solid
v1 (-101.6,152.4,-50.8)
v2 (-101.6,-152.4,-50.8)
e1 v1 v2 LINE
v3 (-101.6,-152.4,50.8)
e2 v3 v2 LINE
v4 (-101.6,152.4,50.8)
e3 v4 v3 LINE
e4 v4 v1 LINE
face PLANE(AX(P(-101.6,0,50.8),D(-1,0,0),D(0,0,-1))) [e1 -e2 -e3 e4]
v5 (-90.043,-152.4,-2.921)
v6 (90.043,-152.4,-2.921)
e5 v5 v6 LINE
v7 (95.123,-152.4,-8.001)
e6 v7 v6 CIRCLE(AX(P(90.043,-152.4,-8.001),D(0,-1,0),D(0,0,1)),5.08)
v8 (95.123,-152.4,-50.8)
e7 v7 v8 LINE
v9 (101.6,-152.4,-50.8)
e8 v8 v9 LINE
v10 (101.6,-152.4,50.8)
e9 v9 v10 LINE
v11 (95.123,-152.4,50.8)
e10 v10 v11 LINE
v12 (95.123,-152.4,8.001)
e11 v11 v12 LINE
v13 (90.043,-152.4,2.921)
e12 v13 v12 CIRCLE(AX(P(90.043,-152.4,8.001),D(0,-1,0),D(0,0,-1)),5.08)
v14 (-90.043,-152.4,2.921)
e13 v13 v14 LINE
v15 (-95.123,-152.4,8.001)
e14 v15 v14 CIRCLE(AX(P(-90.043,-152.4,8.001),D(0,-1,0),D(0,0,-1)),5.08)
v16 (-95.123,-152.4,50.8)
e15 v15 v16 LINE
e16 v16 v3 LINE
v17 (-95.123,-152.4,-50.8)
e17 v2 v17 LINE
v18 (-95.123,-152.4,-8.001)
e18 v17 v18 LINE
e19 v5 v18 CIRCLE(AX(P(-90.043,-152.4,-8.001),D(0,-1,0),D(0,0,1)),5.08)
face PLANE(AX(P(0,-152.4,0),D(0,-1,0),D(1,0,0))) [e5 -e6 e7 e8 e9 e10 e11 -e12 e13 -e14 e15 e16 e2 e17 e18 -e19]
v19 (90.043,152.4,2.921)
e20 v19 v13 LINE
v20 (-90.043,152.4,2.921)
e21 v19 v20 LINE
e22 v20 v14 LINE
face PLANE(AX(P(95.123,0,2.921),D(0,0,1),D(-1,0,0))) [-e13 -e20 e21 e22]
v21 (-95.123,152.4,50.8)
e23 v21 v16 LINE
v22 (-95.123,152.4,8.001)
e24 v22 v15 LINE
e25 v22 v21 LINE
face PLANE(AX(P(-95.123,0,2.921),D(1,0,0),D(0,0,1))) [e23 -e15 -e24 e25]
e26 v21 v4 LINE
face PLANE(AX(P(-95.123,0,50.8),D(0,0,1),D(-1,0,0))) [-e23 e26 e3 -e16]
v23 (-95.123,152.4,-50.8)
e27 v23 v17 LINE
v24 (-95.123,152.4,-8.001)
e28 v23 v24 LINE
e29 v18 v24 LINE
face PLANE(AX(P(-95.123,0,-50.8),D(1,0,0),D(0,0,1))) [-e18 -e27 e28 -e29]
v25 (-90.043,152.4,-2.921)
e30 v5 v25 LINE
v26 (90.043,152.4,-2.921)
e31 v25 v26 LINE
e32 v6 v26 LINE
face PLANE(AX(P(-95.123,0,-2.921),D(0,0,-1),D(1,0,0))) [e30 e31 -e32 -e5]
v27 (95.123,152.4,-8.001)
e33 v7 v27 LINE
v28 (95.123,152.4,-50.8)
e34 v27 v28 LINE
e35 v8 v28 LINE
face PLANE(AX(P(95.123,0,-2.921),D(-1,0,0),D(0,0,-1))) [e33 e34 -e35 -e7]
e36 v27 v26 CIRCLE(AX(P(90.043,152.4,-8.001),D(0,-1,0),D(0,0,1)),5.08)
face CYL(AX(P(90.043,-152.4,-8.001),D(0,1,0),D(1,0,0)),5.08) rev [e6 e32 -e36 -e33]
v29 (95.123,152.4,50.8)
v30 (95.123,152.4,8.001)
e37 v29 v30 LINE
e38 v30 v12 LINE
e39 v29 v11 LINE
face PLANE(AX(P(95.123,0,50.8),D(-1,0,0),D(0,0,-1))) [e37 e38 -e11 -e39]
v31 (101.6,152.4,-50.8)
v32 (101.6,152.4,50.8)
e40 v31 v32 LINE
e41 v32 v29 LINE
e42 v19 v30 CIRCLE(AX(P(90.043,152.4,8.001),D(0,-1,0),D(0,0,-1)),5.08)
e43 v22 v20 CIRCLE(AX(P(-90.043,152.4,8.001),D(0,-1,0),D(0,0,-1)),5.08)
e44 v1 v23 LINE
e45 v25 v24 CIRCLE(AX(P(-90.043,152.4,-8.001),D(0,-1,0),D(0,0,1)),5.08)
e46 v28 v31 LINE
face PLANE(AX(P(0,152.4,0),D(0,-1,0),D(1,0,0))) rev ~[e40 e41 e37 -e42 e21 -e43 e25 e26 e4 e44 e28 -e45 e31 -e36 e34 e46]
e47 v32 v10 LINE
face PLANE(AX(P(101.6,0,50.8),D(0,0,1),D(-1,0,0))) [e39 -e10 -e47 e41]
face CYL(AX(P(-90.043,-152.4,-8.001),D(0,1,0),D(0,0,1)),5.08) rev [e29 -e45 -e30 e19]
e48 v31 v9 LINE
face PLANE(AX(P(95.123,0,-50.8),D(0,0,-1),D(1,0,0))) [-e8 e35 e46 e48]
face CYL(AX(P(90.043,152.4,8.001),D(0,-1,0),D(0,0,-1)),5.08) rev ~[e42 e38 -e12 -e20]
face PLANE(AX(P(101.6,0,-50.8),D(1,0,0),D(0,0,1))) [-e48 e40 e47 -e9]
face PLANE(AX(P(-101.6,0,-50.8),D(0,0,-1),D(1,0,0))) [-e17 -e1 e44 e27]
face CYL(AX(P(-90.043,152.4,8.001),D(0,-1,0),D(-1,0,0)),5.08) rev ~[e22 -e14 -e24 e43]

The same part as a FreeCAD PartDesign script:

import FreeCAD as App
import Part
import Sketcher
from FreeCAD import Vector
Q = App.Units.Quantity


def edges_at(feature, points):
    """Names of the edges that pass closest to the given points."""
    edges = feature.Shape.Edges
    near = lambda p: min(range(len(edges)), key=lambda i: edges[i].distToShape(Part.Vertex(*p))[0])
    return sorted({f"Edge{near(p) + 1}" for p in points})

doc = App.newDocument("Part")
body = doc.addObject("PartDesign::Body", "Body")

# Sketch on XZ plane
sketch1 = body.newObject("Sketcher::SketchObject", "Sketch")
sketch1.AttachmentSupport = (doc.getObject("XZ_Plane"), [""])
sketch1.MapMode = "FlatFace"
sketch1.addGeometry(Part.LineSegment(Vector(95.123, -50.8, 0), Vector(101.6, -50.8, 0)), False)
sketch1.addGeometry(Part.LineSegment(Vector(101.6, -50.8, 0), Vector(101.6, 50.8, 0)), False)
sketch1.addGeometry(Part.LineSegment(Vector(101.6, 50.8, 0), Vector(95.123, 50.8, 0)), False)
sketch1.addGeometry(Part.LineSegment(Vector(95.123, 50.8, 0), Vector(95.123, 2.921, 0)), False)
sketch1.addGeometry(Part.LineSegment(Vector(95.123, 2.921, 0), Vector(-95.123, 2.921, 0)), False)
sketch1.addGeometry(Part.LineSegment(Vector(-95.123, 2.921, 0), Vector(-95.123, 50.8, 0)), False)
sketch1.addGeometry(Part.LineSegment(Vector(-95.123, 50.8, 0), Vector(-101.6, 50.8, 0)), False)
sketch1.addGeometry(Part.LineSegment(Vector(-101.6, 50.8, 0), Vector(-101.6, -50.8, 0)), False)
sketch1.addGeometry(Part.LineSegment(Vector(-101.6, -50.8, 0), Vector(-95.123, -50.8, 0)), False)
sketch1.addGeometry(Part.LineSegment(Vector(-95.123, -50.8, 0), Vector(-95.123, -2.921, 0)), False)
sketch1.addGeometry(Part.LineSegment(Vector(-95.123, -2.921, 0), Vector(95.123, -2.921, 0)), False)
sketch1.addGeometry(Part.LineSegment(Vector(95.123, -2.921, 0), Vector(95.123, -50.8, 0)), False)
sketch1.addConstraint(Sketcher.Constraint("Coincident", 0, 2, 1, 1))
sketch1.addConstraint(Sketcher.Constraint("Coincident", 1, 2, 2, 1))
sketch1.addConstraint(Sketcher.Constraint("Coincident", 2, 2, 3, 1))
sketch1.addConstraint(Sketcher.Constraint("Coincident", 3, 2, 4, 1))
sketch1.addConstraint(Sketcher.Constraint("Coincident", 4, 2, 5, 1))
sketch1.addConstraint(Sketcher.Constraint("Coincident", 5, 2, 6, 1))
sketch1.addConstraint(Sketcher.Constraint("Coincident", 6, 2, 7, 1))
sketch1.addConstraint(Sketcher.Constraint("Coincident", 7, 2, 8, 1))
sketch1.addConstraint(Sketcher.Constraint("Coincident", 8, 2, 9, 1))
sketch1.addConstraint(Sketcher.Constraint("Coincident", 9, 2, 10, 1))
sketch1.addConstraint(Sketcher.Constraint("Coincident", 10, 2, 11, 1))
sketch1.addConstraint(Sketcher.Constraint("Coincident", 11, 2, 0, 1))
sketch1.addConstraint(Sketcher.Constraint("Horizontal", 0))
sketch1.addConstraint(Sketcher.Constraint("Vertical", 1))
sketch1.addConstraint(Sketcher.Constraint("Horizontal", 2))
sketch1.addConstraint(Sketcher.Constraint("Vertical", 3))
sketch1.addConstraint(Sketcher.Constraint("Horizontal", 4))
sketch1.addConstraint(Sketcher.Constraint("Vertical", 5))
sketch1.addConstraint(Sketcher.Constraint("Horizontal", 6))
sketch1.addConstraint(Sketcher.Constraint("Vertical", 7))
sketch1.addConstraint(Sketcher.Constraint("Horizontal", 8))
sketch1.addConstraint(Sketcher.Constraint("Vertical", 9))
sketch1.addConstraint(Sketcher.Constraint("Horizontal", 10))
sketch1.addConstraint(Sketcher.Constraint("Vertical", 11))
sketch1.addConstraint(Sketcher.Constraint("Symmetric", 0, 2, 6, 2, -1, 1))
sketch1.addConstraint(Sketcher.Constraint("Symmetric", 2, 2, 8, 2, -1, 1))
sketch1.addConstraint(Sketcher.Constraint("Symmetric", 4, 2, 10, 2, -1, 1))
sketch1.addConstraint(Sketcher.Constraint("Symmetric", 2, 2, 5, 2, -2))
sketch1.addConstraint(Sketcher.Constraint("DistanceY", 1, 1, 1, 2, Q("4 in")))
sketch1.addConstraint(Sketcher.Constraint("DistanceX", -1, 1, 0, 2, Q("4 in")))
sketch1.addConstraint(Sketcher.Constraint("DistanceX", 4, 2, 4, 1, Q("7.49 in")))
sketch1.addConstraint(Sketcher.Constraint("DistanceY", 3, 2, 3, 1, Q("1.885 in")))
pad1 = body.newObject("PartDesign::Pad", "Pad")
pad1.Profile = sketch1
pad1.Length = Q("12 in")
pad1.Midplane = True
doc.recompute()

fillet = body.newObject("PartDesign::Fillet", "Fillet")
fillet.Base = (pad1, edges_at(pad1, [
    (-95.123, 0, 2.921),
    (-95.123, 0, -2.921),
    (95.123, 0, -2.921),
    (95.123, 0, 2.921),
]))
fillet.Radius = Q("0.2 in")

doc.recompute()
